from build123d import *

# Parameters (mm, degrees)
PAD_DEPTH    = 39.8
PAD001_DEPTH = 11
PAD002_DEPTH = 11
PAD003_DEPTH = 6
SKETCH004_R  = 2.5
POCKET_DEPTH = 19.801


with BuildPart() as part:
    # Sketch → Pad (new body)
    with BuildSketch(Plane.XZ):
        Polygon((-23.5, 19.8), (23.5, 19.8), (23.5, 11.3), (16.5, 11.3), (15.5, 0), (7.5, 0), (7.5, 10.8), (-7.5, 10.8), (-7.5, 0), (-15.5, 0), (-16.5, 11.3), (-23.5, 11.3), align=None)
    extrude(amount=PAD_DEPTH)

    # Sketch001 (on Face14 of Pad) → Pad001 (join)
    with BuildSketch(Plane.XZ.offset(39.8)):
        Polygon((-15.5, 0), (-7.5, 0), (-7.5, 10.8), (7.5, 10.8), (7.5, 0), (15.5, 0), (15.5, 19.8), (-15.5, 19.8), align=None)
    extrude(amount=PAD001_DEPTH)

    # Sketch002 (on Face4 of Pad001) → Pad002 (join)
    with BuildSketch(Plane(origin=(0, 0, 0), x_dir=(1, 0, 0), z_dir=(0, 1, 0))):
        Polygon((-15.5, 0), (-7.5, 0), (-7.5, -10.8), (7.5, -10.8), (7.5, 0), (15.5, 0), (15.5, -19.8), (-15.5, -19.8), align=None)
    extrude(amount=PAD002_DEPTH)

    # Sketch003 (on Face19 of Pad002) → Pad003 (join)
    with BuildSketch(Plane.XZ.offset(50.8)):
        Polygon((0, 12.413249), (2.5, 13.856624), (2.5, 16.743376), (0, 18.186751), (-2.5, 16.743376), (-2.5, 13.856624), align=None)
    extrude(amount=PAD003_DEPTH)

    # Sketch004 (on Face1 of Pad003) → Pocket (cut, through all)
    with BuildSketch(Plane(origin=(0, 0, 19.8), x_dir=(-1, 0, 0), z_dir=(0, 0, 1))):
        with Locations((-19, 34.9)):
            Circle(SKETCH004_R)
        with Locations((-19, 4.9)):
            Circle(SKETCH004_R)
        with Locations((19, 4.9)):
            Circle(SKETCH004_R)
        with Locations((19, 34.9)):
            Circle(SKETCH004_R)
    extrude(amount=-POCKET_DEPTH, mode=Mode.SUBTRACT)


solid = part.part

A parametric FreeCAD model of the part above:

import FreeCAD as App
import Part
import Sketcher
Q = App.Units.Quantity

doc = App.newDocument("Part")
body = doc.addObject("PartDesign::Body", "Body")

sketch1 = body.newObject("Sketcher::SketchObject", "Sketch")
sketch1.AttachmentSupport = (doc.getObject("XZ_Plane"), [""])
sketch1.MapMode = "FlatFace"
sketch1.addGeometry([
    Part.LineSegment(App.Vector(24, 20, 0), App.Vector(-24, 20, 0)),
    Part.LineSegment(App.Vector(-24, 20, 0), App.Vector(-24, 11, 0)),
    Part.LineSegment(App.Vector(-24, 11, 0), App.Vector(-16, 11, 0)),
    Part.LineSegment(App.Vector(-16, 11, 0), App.Vector(-16, 0, 0)),
    Part.LineSegment(App.Vector(-16, 0, 0), App.Vector(-8, 0, 0)),
    Part.LineSegment(App.Vector(-8, 0, 0), App.Vector(-8, 11, 0)),
    Part.LineSegment(App.Vector(-8, 11, 0), App.Vector(8, 11, 0)),
    Part.LineSegment(App.Vector(8, 11, 0), App.Vector(8, 0, 0)),
    Part.LineSegment(App.Vector(8, 0, 0), App.Vector(16, 0, 0)),
    Part.LineSegment(App.Vector(16, 0, 0), App.Vector(16, 11, 0)),
    Part.LineSegment(App.Vector(16, 11, 0), App.Vector(24, 11, 0)),
    Part.LineSegment(App.Vector(24, 11, 0), App.Vector(24, 20, 0)),
], False)
sketch1.addConstraint([
    Sketcher.Constraint("Coincident", 0, 2, 1, 1),
    Sketcher.Constraint("Coincident", 1, 2, 2, 1),
    Sketcher.Constraint("Coincident", 2, 2, 3, 1),
    Sketcher.Constraint("Coincident", 3, 2, 4, 1),
    Sketcher.Constraint("Coincident", 4, 2, 5, 1),
    Sketcher.Constraint("Coincident", 5, 2, 6, 1),
    Sketcher.Constraint("Coincident", 6, 2, 7, 1),
    Sketcher.Constraint("Coincident", 7, 2, 8, 1),
    Sketcher.Constraint("Coincident", 8, 2, 9, 1),
    Sketcher.Constraint("Coincident", 9, 2, 10, 1),
    Sketcher.Constraint("Coincident", 10, 2, 11, 1),
    Sketcher.Constraint("Coincident", 11, 2, 0, 1),
    Sketcher.Constraint("Horizontal", 0),
    Sketcher.Constraint("Vertical", 1),
    Sketcher.Constraint("Horizontal", 2),
    Sketcher.Constraint("Horizontal", 4),
    Sketcher.Constraint("Vertical", 5),
    Sketcher.Constraint("Horizontal", 6),
    Sketcher.Constraint("Vertical", 7),
    Sketcher.Constraint("Horizontal", 8),
    Sketcher.Constraint("Horizontal", 10),
    Sketcher.Constraint("Vertical", 11),
    Sketcher.Constraint("Symmetric", 4, 2, 7, 2, -1, 1),
    Sketcher.Constraint("Symmetric", 3, 2, 8, 2, -2),
    Sketcher.Constraint("Symmetric", 2, 2, 9, 2, -2),
    Sketcher.Constraint("Equal", 2, 10),
    Sketcher.Constraint("DistanceX", 0, 2, 0, 1, Q("47 mm")),
    Sketcher.Constraint("DistanceX", 2, 1, 2, 2, Q("7 mm")),
    Sketcher.Constraint("DistanceX", 4, 1, 4, 2, Q("8 mm")),
    Sketcher.Constraint("DistanceX", 6, 1, 6, 2, Q("15 mm")),
    Sketcher.Constraint("DistanceY", 1, 2, 1, 1, Q("8.5 mm")),
    Sketcher.Constraint("DistanceY", 5, 1, 5, 2, Q("10.8 mm")),
    Sketcher.Constraint("DistanceY", 5, 2, 0, 2, Q("9 mm")),
])
pad1 = body.newObject("PartDesign::Pad", "Pad")
pad1.Profile = sketch1
pad1.Length = 39.8

sketch2 = body.newObject("Sketcher::SketchObject", "Sketch001")
sketch2.AttachmentSupport = (doc.getObject("XZ_Plane"), [""])
sketch2.MapMode = "FlatFace"
sketch2.AttachmentOffset = App.Placement(App.Vector(0, 0, 39.8), App.Rotation())
sketch2.addGeometry([
    Part.LineSegment(App.Vector(-16, 0, 0), App.Vector(-8, 0, 0)),
    Part.LineSegment(App.Vector(-8, 0, 0), App.Vector(-8, 11, 0)),
    Part.LineSegment(App.Vector(-8, 11, 0), App.Vector(8, 11, 0)),
    Part.LineSegment(App.Vector(8, 11, 0), App.Vector(8, 0, 0)),
    Part.LineSegment(App.Vector(8, 0, 0), App.Vector(16, 0, 0)),
    Part.LineSegment(App.Vector(16, 0, 0), App.Vector(16, 20, 0)),
    Part.LineSegment(App.Vector(16, 20, 0), App.Vector(-16, 20, 0)),
    Part.LineSegment(App.Vector(-16, 20, 0), App.Vector(-16, 0, 0)),
], False)
sketch2.addConstraint([
    Sketcher.Constraint("Coincident", 0, 2, 1, 1),
    Sketcher.Constraint("Coincident", 1, 2, 2, 1),
    Sketcher.Constraint("Coincident", 2, 2, 3, 1),
    Sketcher.Constraint("Coincident", 3, 2, 4, 1),
    Sketcher.Constraint("Coincident", 4, 2, 5, 1),
    Sketcher.Constraint("Coincident", 5, 2, 6, 1),
    Sketcher.Constraint("Coincident", 6, 2, 7, 1),
    Sketcher.Constraint("Coincident", 7, 2, 0, 1),
    Sketcher.Constraint("Horizontal", 0),
    Sketcher.Constraint("Vertical", 1),
    Sketcher.Constraint("Horizontal", 2),
    Sketcher.Constraint("Vertical", 3),
    Sketcher.Constraint("Horizontal", 4),
    Sketcher.Constraint("Vertical", 5),
    Sketcher.Constraint("Horizontal", 6),
    Sketcher.Constraint("Vertical", 7),
    Sketcher.Constraint("Symmetric", 0, 2, 3, 2, -1, 1),
    Sketcher.Constraint("Symmetric", 4, 2, 7, 2, -2),
    Sketcher.Constraint("DistanceX", 0, 1, 0, 2, Q("8 mm")),
    Sketcher.Constraint("DistanceX", 2, 1, 2, 2, Q("15 mm")),
    Sketcher.Constraint("DistanceY", 1, 1, 1, 2, Q("10.8 mm")),
    Sketcher.Constraint("DistanceY", 5, 1, 5, 2, Q("19.8 mm")),
])
pad2 = body.newObject("PartDesign::Pad", "Pad001")
pad2.Profile = sketch2
pad2.Length = 11

sketch3 = body.newObject("Sketcher::SketchObject", "Sketch002")
sketch3.AttachmentSupport = (doc.getObject("XZ_Plane"), [""])
sketch3.MapMode = "FlatFace"
sketch3.addGeometry([
    Part.LineSegment(App.Vector(-8, 0, 0), App.Vector(-16, 0, 0)),
    Part.LineSegment(App.Vector(-16, 0, 0), App.Vector(-16, 20, 0)),
    Part.LineSegment(App.Vector(-16, 20, 0), App.Vector(16, 20, 0)),
    Part.LineSegment(App.Vector(16, 20, 0), App.Vector(16, 0, 0)),
    Part.LineSegment(App.Vector(16, 0, 0), App.Vector(8, 0, 0)),
    Part.LineSegment(App.Vector(8, 0, 0), App.Vector(8, 11, 0)),
    Part.LineSegment(App.Vector(8, 11, 0), App.Vector(-8, 11, 0)),
    Part.LineSegment(App.Vector(-8, 11, 0), App.Vector(-8, 0, 0)),
], False)
sketch3.addConstraint([
    Sketcher.Constraint("Coincident", 0, 2, 1, 1),
    Sketcher.Constraint("Coincident", 1, 2, 2, 1),
    Sketcher.Constraint("Coincident", 2, 2, 3, 1),
    Sketcher.Constraint("Coincident", 3, 2, 4, 1),
    Sketcher.Constraint("Coincident", 4, 2, 5, 1),
    Sketcher.Constraint("Coincident", 5, 2, 6, 1),
    Sketcher.Constraint("Coincident", 6, 2, 7, 1),
    Sketcher.Constraint("Coincident", 7, 2, 0, 1),
    Sketcher.Constraint("Horizontal", 0),
    Sketcher.Constraint("Vertical", 1),
    Sketcher.Constraint("Horizontal", 2),
    Sketcher.Constraint("Vertical", 3),
    Sketcher.Constraint("Horizontal", 4),
    Sketcher.Constraint("Vertical", 5),
    Sketcher.Constraint("Horizontal", 6),
    Sketcher.Constraint("Vertical", 7),
    Sketcher.Constraint("Symmetric", 0, 2, 3, 2, -1, 1),
    Sketcher.Constraint("Symmetric", 4, 2, 7, 2, -2),
    Sketcher.Constraint("DistanceX", 0, 2, 0, 1, Q("8 mm")),
    Sketcher.Constraint("DistanceX", 2, 1, 2, 2, Q("31 mm")),
    Sketcher.Constraint("DistanceY", 1, 1, 1, 2, Q("19.8 mm")),
    Sketcher.Constraint("DistanceY", 5, 1, 5, 2, Q("10.8 mm")),
])
pad3 = body.newObject("PartDesign::Pad", "Pad002")
pad3.Profile = sketch3
pad3.Length = 11
pad3.Reversed = True

sketch4 = body.newObject("Sketcher::SketchObject", "Sketch003")
sketch4.AttachmentSupport = (doc.getObject("XZ_Plane"), [""])
sketch4.MapMode = "FlatFace"
sketch4.AttachmentOffset = App.Placement(App.Vector(0, 0, 50.8), App.Rotation())
sketch4.addGeometry([
    Part.LineSegment(App.Vector(0, 12.4, 0), App.Vector(2.5, 13.9, 0)),
    Part.LineSegment(App.Vector(2.5, 13.9, 0), App.Vector(2.5, 16.7, 0)),
    Part.LineSegment(App.Vector(2.5, 16.7, 0), App.Vector(0, 18.2, 0)),
    Part.LineSegment(App.Vector(0, 18.2, 0), App.Vector(-2.5, 16.7, 0)),
    Part.LineSegment(App.Vector(-2.5, 16.7, 0), App.Vector(-2.5, 13.9, 0)),
    Part.LineSegment(App.Vector(-2.5, 13.9, 0), App.Vector(0, 12.4, 0)),
], False)
sketch4.addConstraint([
    Sketcher.Constraint("Coincident", 0, 2, 1, 1),
    Sketcher.Constraint("Coincident", 1, 2, 2, 1),
    Sketcher.Constraint("Coincident", 2, 2, 3, 1),
    Sketcher.Constraint("Coincident", 3, 2, 4, 1),
    Sketcher.Constraint("Coincident", 4, 2, 5, 1),
    Sketcher.Constraint("Coincident", 5, 2, 0, 1),
    Sketcher.Constraint("Vertical", 1),
    Sketcher.Constraint("Vertical", 4),
    Sketcher.Constraint("Symmetric", 1, 2, 3, 2, -2),
    Sketcher.Constraint("PointOnObject", 2, 2, -2),
    Sketcher.Constraint("PointOnObject", 5, 2, -2),
    Sketcher.Constraint("Parallel", 0, 3),
    Sketcher.Constraint("Parallel", 2, 5),
    Sketcher.Constraint("Angle", 0, Q("29.999988 deg")),
    Sketcher.Constraint("DistanceX", 3, 2, 1, 2, Q("5 mm")),
    Sketcher.Constraint("DistanceY", 1, 1, 1, 2, Q("2.886752 mm")),
    Sketcher.Constraint("DistanceY", -1, 1, 2, 2, Q("18.186751 mm")),
])
pad4 = body.newObject("PartDesign::Pad", "Pad003")
pad4.Profile = sketch4
pad4.Length = 6

sketch5 = body.newObject("Sketcher::SketchObject", "Sketch004")
sketch5.AttachmentSupport = (doc.getObject("XY_Plane"), [""])
sketch5.MapMode = "FlatFace"
sketch5.AttachmentOffset = App.Placement(App.Vector(0, 0, 19.8), App.Rotation())
sketch5.addGeometry([
    Part.Circle(App.Vector(19, -34.9, 0), App.Vector(0, 0, 1), 2.5),
    Part.Circle(App.Vector(19, -4.9, 0), App.Vector(0, 0, 1), 2.5),
    Part.Circle(App.Vector(-19, -4.9, 0), App.Vector(0, 0, 1), 2.5),
    Part.Circle(App.Vector(-19, -34.9, 0), App.Vector(0, 0, 1), 2.5),
], False)
sketch5.addConstraint([
    Sketcher.Constraint("Equal", 0, 1),
    Sketcher.Constraint("Equal", 1, 2),
    Sketcher.Constraint("Equal", 2, 3),
    Sketcher.Constraint("Symmetric", 1, 3, 2, 3, -2),
    Sketcher.Constraint("Symmetric", 0, 3, 3, 3, -2),
    Sketcher.Constraint("Vertical", 0, 3, 1, 3),
    Sketcher.Constraint("Diameter", 0, Q("5 mm")),
    Sketcher.Constraint("DistanceX", -1, 1, 0, 3, Q("19 mm")),
    Sketcher.Constraint("DistanceY", 0, 3, 1, 3, Q("30 mm")),
    Sketcher.Constraint("DistanceY", 0, 3, -1, 1, Q("34.9 mm")),
])
pocket1 = body.newObject("PartDesign::Pocket", "Pocket")
pocket1.Profile = sketch5
pocket1.Type = "ThroughAll"

doc.recompute()
